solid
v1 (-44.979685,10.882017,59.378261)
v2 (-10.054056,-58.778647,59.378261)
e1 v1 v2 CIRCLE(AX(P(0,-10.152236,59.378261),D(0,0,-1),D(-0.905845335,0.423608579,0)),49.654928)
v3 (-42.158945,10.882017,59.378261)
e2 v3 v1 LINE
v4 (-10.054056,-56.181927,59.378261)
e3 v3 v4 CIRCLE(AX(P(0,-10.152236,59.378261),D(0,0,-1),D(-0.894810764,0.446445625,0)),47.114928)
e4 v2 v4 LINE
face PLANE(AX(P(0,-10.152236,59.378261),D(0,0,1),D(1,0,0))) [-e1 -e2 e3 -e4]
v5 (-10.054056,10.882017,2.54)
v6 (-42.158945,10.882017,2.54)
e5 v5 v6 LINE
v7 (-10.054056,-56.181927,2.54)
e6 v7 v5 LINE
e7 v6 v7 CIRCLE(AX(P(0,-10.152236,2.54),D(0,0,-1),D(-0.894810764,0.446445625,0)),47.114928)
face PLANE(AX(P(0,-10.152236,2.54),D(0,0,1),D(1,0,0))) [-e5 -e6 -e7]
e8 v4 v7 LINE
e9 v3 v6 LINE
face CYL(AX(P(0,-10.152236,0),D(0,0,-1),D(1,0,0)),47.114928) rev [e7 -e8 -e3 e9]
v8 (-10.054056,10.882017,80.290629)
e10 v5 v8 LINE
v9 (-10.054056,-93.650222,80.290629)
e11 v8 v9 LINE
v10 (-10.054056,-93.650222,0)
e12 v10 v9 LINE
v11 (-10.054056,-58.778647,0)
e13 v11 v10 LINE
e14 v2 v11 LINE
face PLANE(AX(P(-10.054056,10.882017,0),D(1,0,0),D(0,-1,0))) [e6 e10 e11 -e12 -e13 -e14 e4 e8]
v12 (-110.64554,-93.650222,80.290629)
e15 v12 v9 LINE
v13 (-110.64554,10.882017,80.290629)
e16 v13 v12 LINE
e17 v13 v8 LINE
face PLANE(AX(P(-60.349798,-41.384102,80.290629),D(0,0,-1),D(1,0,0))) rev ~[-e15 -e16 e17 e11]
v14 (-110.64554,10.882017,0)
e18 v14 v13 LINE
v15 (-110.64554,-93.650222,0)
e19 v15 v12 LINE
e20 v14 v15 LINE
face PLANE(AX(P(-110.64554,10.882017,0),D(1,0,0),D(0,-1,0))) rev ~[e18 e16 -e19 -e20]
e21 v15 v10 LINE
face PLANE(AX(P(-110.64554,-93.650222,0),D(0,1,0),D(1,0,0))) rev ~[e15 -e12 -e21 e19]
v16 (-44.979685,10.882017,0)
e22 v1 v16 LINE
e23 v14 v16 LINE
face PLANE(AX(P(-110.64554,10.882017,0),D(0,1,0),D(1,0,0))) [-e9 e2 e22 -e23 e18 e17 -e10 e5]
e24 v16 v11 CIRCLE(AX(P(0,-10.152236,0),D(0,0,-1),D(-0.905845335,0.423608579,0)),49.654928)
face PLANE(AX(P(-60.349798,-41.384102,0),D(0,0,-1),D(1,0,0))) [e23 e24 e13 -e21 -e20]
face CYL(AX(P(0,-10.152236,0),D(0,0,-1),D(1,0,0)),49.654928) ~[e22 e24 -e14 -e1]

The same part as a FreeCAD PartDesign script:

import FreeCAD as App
import Part
import Sketcher

V = App.Vector
Q = App.Units.Quantity


def faces_at(feature, points):
    """Names of the faces that lie closest to the given points."""
    faces = feature.Shape.Faces
    near = lambda p: min(range(len(faces)), key=lambda i: faces[i].distToShape(Part.Vertex(*p))[0])
    return sorted({f"Face{near(p) + 1}" for p in points})

doc = App.newDocument("Part")
params = doc.addObject("Spreadsheet::Sheet", "Params")
for row, (alias, value) in enumerate([
    ("pad1_length", "59.378261 mm"),
    ("thickness_wall", "0.1 in"),
    ("pad2_length", "80.290629 mm"),
], start=1):
    params.set(f"A{row}", alias)
    params.set(f"B{row}", "=" + value)
    params.setAlias(f"B{row}", alias)

body = doc.addObject("PartDesign::Body", "Body")

sketch1 = body.newObject("Sketcher::SketchObject", "Sketch")
sketch1.AttachmentSupport = (doc.getObject("XY_Plane"), [""])
sketch1.MapMode = "FlatFace"
sketch1.addGeometry(Part.Circle(V(0, -10.152236, 0), V(0, 0, 1), 49.654928), False)
sketch1.addConstraint(Sketcher.Constraint("PointOnObject", 0, 3, -2))
sketch1.addConstraint(Sketcher.Constraint("Diameter", 0, Q("99.309856 mm")))
sketch1.addConstraint(Sketcher.Constraint("DistanceY", 0, 3, -1, 1, Q("10.152236 mm")))
pad1 = body.newObject("PartDesign::Pad", "Pad")
pad1.Profile = sketch1
pad1.setExpression("Length", "Params.pad1_length")
doc.recompute()

thickness = body.newObject("PartDesign::Thickness", "Thickness")
thickness.Base = (pad1, faces_at(pad1, [(0, -10.152, 59.378)]))
thickness.setExpression("Value", "Params.thickness_wall")
thickness.Reversed = True
thickness.Join = "Arc"

sketch2 = body.newObject("Sketcher::SketchObject", "Sketch001")
sketch2.AttachmentSupport = (doc.getObject("XY_Plane"), [""])
sketch2.MapMode = "FlatFace"
sketch2.addGeometry(Part.LineSegment(V(-110.64554, -93.650222, 0), V(-110.64554, 10.882017, 0)), False)
sketch2.addGeometry(Part.LineSegment(V(-110.64554, 10.882017, 0), V(-10.054056, 10.882017, 0)), False)
sketch2.addGeometry(Part.LineSegment(V(-10.054056, 10.882017, 0), V(-10.054056, -93.650222, 0)), False)
sketch2.addGeometry(Part.LineSegment(V(-10.054056, -93.650222, 0), V(-110.64554, -93.650222, 0)), False)
sketch2.addConstraint(Sketcher.Constraint("Coincident", 0, 2, 1, 1))
sketch2.addConstraint(Sketcher.Constraint("Coincident", 1, 2, 2, 1))
sketch2.addConstraint(Sketcher.Constraint("Coincident", 2, 2, 3, 1))
sketch2.addConstraint(Sketcher.Constraint("Coincident", 3, 2, 0, 1))
sketch2.addConstraint(Sketcher.Constraint("Vertical", 0))
sketch2.addConstraint(Sketcher.Constraint("Horizontal", 1))
sketch2.addConstraint(Sketcher.Constraint("Vertical", 2))
sketch2.addConstraint(Sketcher.Constraint("Horizontal", 3))
sketch2.addConstraint(Sketcher.Constraint("DistanceY", 0, 1, 0, 2, Q("104.532239 mm")))
sketch2.addConstraint(Sketcher.Constraint("DistanceX", 1, 1, 1, 2, Q("100.591485 mm")))
sketch2.addConstraint(Sketcher.Constraint("DistanceX", 0, 2, -1, 1, Q("110.64554 mm")))
sketch2.addConstraint(Sketcher.Constraint("DistanceY", 2, 2, -1, 1, Q("93.650222 mm")))
pad2 = body.newObject("PartDesign::Pad", "Pad001")
pad2.Profile = sketch2
pad2.setExpression("Length", "Params.pad2_length")

doc.recompute()
